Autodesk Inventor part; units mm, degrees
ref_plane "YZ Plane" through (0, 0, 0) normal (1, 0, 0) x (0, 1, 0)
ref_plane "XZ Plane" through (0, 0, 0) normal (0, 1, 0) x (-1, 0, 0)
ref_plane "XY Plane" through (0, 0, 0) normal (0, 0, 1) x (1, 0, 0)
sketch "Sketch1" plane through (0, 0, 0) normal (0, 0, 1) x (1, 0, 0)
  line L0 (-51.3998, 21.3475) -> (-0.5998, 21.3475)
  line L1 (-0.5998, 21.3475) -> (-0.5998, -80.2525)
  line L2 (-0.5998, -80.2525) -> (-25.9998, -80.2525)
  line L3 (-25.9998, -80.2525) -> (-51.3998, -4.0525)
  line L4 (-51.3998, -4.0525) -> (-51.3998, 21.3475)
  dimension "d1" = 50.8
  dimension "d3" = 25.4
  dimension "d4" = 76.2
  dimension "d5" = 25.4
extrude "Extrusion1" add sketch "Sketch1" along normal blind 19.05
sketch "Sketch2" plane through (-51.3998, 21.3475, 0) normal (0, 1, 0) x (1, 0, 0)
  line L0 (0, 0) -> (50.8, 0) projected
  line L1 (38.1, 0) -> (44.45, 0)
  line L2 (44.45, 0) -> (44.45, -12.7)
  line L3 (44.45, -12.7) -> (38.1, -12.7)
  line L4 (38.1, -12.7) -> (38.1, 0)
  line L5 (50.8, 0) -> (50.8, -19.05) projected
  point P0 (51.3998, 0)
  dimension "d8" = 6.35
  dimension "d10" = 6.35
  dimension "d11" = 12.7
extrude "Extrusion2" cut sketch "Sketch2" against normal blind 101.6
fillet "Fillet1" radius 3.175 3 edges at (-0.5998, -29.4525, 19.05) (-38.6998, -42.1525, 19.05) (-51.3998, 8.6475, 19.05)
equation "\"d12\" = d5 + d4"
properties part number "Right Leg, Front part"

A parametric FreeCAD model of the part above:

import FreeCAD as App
import Part
import Sketcher
Q = App.Units.Quantity


def edges_at(feature, points):
    """Names of the edges that pass closest to the given points."""
    edges = feature.Shape.Edges
    near = lambda p: min(range(len(edges)), key=lambda i: edges[i].distToShape(Part.Vertex(*p))[0])
    return sorted({f"Edge{near(p) + 1}" for p in points})


def add_polygon(sketch, points):
    """Adds a closed chain of lines whose ends are joined by coincident constraints."""
    first, n = sketch.GeometryCount, len(points)
    for a, b in zip(points, points[1:] + points[:1]):
        sketch.addGeometry(Part.LineSegment(App.Vector(*a, 0), App.Vector(*b, 0)), False)
    for i in range(n):
        sketch.addConstraint(Sketcher.Constraint("Coincident", first + i, 2, first + (i + 1) % n, 1))

doc = App.newDocument("Part")
body = doc.addObject("PartDesign::Body", "Body")

# Sketch on XY plane
sketch1 = body.newObject("Sketcher::SketchObject", "Sketch")
sketch1.AttachmentSupport = (doc.getObject("XY_Plane"), [""])
sketch1.MapMode = "FlatFace"
add_polygon(sketch1, [(-0.5998, 21.3475), (-51.3998, 21.3475), (-51.3998, -4.0525), (-25.9998, -80.2525), (-0.5998, -80.2525)])  # lines 0-4
sketch1.addConstraint(Sketcher.Constraint("Horizontal", 0))
sketch1.addConstraint(Sketcher.Constraint("Vertical", 1))
sketch1.addConstraint(Sketcher.Constraint("Horizontal", 3))
sketch1.addConstraint(Sketcher.Constraint("Vertical", 4))
sketch1.addConstraint(Sketcher.Constraint("Equal", 3, 1))
sketch1.addConstraint(Sketcher.Constraint("DistanceX", 0, 2, 0, 1, Q("2 in")))
sketch1.addConstraint(Sketcher.Constraint("DistanceX", 3, 1, 3, 2, Q("1 in")))
sketch1.addConstraint(Sketcher.Constraint("DistanceY", 2, 2, 1, 2, Q("3 in")))
sketch1.addConstraint(Sketcher.Constraint("DistanceX", 0, 2, -1, 1, Q("51.3998 mm")))
sketch1.addConstraint(Sketcher.Constraint("DistanceY", -1, 1, 0, 2, Q("21.3475 mm")))
pad1 = body.newObject("PartDesign::Pad", "Pad")
pad1.Profile = sketch1
pad1.Length = Q("0.75 in")

# Sketch on XZ plane
sketch2 = body.newObject("Sketcher::SketchObject", "Sketch001")
sketch2.AttachmentSupport = (doc.getObject("XZ_Plane"), [""])
sketch2.MapMode = "FlatFace"
sketch2.AttachmentOffset = App.Placement(App.Vector(0, 0, -21.3475), App.Rotation())
add_polygon(sketch2, [(-6.9498, 0), (-13.2998, 0), (-13.2998, 12.7), (-6.9498, 12.7)])  # lines 0-3
sketch2.addConstraint(Sketcher.Constraint("Horizontal", 0))
sketch2.addConstraint(Sketcher.Constraint("Vertical", 1))
sketch2.addConstraint(Sketcher.Constraint("Horizontal", 2))
sketch2.addConstraint(Sketcher.Constraint("Vertical", 3))
sketch2.addConstraint(Sketcher.Constraint("PointOnObject", 0, 2, -1))
sketch2.addConstraint(Sketcher.Constraint("DistanceY", 1, 1, 1, 2, Q("0.5 in")))
sketch2.addConstraint(Sketcher.Constraint("DistanceX", 0, 2, 0, 1, Q("0.25 in")))
sketch2.addConstraint(Sketcher.Constraint("DistanceX", 0, 2, -1, 1, Q("13.2998 mm")))
pocket1 = body.newObject("PartDesign::Pocket", "Pocket")
pocket1.Profile = sketch2
pocket1.Length = Q("4 in")
pocket1.Reversed = True
doc.recompute()

fillet = body.newObject("PartDesign::Fillet", "Fillet")
fillet.Base = (pocket1, edges_at(pocket1, [(-0.6, -29.453, 19.05), (-38.7, -42.153, 19.05), (-51.4, 8.648, 19.05)]))
fillet.Radius = Q("0.125 in")

doc.recompute()
